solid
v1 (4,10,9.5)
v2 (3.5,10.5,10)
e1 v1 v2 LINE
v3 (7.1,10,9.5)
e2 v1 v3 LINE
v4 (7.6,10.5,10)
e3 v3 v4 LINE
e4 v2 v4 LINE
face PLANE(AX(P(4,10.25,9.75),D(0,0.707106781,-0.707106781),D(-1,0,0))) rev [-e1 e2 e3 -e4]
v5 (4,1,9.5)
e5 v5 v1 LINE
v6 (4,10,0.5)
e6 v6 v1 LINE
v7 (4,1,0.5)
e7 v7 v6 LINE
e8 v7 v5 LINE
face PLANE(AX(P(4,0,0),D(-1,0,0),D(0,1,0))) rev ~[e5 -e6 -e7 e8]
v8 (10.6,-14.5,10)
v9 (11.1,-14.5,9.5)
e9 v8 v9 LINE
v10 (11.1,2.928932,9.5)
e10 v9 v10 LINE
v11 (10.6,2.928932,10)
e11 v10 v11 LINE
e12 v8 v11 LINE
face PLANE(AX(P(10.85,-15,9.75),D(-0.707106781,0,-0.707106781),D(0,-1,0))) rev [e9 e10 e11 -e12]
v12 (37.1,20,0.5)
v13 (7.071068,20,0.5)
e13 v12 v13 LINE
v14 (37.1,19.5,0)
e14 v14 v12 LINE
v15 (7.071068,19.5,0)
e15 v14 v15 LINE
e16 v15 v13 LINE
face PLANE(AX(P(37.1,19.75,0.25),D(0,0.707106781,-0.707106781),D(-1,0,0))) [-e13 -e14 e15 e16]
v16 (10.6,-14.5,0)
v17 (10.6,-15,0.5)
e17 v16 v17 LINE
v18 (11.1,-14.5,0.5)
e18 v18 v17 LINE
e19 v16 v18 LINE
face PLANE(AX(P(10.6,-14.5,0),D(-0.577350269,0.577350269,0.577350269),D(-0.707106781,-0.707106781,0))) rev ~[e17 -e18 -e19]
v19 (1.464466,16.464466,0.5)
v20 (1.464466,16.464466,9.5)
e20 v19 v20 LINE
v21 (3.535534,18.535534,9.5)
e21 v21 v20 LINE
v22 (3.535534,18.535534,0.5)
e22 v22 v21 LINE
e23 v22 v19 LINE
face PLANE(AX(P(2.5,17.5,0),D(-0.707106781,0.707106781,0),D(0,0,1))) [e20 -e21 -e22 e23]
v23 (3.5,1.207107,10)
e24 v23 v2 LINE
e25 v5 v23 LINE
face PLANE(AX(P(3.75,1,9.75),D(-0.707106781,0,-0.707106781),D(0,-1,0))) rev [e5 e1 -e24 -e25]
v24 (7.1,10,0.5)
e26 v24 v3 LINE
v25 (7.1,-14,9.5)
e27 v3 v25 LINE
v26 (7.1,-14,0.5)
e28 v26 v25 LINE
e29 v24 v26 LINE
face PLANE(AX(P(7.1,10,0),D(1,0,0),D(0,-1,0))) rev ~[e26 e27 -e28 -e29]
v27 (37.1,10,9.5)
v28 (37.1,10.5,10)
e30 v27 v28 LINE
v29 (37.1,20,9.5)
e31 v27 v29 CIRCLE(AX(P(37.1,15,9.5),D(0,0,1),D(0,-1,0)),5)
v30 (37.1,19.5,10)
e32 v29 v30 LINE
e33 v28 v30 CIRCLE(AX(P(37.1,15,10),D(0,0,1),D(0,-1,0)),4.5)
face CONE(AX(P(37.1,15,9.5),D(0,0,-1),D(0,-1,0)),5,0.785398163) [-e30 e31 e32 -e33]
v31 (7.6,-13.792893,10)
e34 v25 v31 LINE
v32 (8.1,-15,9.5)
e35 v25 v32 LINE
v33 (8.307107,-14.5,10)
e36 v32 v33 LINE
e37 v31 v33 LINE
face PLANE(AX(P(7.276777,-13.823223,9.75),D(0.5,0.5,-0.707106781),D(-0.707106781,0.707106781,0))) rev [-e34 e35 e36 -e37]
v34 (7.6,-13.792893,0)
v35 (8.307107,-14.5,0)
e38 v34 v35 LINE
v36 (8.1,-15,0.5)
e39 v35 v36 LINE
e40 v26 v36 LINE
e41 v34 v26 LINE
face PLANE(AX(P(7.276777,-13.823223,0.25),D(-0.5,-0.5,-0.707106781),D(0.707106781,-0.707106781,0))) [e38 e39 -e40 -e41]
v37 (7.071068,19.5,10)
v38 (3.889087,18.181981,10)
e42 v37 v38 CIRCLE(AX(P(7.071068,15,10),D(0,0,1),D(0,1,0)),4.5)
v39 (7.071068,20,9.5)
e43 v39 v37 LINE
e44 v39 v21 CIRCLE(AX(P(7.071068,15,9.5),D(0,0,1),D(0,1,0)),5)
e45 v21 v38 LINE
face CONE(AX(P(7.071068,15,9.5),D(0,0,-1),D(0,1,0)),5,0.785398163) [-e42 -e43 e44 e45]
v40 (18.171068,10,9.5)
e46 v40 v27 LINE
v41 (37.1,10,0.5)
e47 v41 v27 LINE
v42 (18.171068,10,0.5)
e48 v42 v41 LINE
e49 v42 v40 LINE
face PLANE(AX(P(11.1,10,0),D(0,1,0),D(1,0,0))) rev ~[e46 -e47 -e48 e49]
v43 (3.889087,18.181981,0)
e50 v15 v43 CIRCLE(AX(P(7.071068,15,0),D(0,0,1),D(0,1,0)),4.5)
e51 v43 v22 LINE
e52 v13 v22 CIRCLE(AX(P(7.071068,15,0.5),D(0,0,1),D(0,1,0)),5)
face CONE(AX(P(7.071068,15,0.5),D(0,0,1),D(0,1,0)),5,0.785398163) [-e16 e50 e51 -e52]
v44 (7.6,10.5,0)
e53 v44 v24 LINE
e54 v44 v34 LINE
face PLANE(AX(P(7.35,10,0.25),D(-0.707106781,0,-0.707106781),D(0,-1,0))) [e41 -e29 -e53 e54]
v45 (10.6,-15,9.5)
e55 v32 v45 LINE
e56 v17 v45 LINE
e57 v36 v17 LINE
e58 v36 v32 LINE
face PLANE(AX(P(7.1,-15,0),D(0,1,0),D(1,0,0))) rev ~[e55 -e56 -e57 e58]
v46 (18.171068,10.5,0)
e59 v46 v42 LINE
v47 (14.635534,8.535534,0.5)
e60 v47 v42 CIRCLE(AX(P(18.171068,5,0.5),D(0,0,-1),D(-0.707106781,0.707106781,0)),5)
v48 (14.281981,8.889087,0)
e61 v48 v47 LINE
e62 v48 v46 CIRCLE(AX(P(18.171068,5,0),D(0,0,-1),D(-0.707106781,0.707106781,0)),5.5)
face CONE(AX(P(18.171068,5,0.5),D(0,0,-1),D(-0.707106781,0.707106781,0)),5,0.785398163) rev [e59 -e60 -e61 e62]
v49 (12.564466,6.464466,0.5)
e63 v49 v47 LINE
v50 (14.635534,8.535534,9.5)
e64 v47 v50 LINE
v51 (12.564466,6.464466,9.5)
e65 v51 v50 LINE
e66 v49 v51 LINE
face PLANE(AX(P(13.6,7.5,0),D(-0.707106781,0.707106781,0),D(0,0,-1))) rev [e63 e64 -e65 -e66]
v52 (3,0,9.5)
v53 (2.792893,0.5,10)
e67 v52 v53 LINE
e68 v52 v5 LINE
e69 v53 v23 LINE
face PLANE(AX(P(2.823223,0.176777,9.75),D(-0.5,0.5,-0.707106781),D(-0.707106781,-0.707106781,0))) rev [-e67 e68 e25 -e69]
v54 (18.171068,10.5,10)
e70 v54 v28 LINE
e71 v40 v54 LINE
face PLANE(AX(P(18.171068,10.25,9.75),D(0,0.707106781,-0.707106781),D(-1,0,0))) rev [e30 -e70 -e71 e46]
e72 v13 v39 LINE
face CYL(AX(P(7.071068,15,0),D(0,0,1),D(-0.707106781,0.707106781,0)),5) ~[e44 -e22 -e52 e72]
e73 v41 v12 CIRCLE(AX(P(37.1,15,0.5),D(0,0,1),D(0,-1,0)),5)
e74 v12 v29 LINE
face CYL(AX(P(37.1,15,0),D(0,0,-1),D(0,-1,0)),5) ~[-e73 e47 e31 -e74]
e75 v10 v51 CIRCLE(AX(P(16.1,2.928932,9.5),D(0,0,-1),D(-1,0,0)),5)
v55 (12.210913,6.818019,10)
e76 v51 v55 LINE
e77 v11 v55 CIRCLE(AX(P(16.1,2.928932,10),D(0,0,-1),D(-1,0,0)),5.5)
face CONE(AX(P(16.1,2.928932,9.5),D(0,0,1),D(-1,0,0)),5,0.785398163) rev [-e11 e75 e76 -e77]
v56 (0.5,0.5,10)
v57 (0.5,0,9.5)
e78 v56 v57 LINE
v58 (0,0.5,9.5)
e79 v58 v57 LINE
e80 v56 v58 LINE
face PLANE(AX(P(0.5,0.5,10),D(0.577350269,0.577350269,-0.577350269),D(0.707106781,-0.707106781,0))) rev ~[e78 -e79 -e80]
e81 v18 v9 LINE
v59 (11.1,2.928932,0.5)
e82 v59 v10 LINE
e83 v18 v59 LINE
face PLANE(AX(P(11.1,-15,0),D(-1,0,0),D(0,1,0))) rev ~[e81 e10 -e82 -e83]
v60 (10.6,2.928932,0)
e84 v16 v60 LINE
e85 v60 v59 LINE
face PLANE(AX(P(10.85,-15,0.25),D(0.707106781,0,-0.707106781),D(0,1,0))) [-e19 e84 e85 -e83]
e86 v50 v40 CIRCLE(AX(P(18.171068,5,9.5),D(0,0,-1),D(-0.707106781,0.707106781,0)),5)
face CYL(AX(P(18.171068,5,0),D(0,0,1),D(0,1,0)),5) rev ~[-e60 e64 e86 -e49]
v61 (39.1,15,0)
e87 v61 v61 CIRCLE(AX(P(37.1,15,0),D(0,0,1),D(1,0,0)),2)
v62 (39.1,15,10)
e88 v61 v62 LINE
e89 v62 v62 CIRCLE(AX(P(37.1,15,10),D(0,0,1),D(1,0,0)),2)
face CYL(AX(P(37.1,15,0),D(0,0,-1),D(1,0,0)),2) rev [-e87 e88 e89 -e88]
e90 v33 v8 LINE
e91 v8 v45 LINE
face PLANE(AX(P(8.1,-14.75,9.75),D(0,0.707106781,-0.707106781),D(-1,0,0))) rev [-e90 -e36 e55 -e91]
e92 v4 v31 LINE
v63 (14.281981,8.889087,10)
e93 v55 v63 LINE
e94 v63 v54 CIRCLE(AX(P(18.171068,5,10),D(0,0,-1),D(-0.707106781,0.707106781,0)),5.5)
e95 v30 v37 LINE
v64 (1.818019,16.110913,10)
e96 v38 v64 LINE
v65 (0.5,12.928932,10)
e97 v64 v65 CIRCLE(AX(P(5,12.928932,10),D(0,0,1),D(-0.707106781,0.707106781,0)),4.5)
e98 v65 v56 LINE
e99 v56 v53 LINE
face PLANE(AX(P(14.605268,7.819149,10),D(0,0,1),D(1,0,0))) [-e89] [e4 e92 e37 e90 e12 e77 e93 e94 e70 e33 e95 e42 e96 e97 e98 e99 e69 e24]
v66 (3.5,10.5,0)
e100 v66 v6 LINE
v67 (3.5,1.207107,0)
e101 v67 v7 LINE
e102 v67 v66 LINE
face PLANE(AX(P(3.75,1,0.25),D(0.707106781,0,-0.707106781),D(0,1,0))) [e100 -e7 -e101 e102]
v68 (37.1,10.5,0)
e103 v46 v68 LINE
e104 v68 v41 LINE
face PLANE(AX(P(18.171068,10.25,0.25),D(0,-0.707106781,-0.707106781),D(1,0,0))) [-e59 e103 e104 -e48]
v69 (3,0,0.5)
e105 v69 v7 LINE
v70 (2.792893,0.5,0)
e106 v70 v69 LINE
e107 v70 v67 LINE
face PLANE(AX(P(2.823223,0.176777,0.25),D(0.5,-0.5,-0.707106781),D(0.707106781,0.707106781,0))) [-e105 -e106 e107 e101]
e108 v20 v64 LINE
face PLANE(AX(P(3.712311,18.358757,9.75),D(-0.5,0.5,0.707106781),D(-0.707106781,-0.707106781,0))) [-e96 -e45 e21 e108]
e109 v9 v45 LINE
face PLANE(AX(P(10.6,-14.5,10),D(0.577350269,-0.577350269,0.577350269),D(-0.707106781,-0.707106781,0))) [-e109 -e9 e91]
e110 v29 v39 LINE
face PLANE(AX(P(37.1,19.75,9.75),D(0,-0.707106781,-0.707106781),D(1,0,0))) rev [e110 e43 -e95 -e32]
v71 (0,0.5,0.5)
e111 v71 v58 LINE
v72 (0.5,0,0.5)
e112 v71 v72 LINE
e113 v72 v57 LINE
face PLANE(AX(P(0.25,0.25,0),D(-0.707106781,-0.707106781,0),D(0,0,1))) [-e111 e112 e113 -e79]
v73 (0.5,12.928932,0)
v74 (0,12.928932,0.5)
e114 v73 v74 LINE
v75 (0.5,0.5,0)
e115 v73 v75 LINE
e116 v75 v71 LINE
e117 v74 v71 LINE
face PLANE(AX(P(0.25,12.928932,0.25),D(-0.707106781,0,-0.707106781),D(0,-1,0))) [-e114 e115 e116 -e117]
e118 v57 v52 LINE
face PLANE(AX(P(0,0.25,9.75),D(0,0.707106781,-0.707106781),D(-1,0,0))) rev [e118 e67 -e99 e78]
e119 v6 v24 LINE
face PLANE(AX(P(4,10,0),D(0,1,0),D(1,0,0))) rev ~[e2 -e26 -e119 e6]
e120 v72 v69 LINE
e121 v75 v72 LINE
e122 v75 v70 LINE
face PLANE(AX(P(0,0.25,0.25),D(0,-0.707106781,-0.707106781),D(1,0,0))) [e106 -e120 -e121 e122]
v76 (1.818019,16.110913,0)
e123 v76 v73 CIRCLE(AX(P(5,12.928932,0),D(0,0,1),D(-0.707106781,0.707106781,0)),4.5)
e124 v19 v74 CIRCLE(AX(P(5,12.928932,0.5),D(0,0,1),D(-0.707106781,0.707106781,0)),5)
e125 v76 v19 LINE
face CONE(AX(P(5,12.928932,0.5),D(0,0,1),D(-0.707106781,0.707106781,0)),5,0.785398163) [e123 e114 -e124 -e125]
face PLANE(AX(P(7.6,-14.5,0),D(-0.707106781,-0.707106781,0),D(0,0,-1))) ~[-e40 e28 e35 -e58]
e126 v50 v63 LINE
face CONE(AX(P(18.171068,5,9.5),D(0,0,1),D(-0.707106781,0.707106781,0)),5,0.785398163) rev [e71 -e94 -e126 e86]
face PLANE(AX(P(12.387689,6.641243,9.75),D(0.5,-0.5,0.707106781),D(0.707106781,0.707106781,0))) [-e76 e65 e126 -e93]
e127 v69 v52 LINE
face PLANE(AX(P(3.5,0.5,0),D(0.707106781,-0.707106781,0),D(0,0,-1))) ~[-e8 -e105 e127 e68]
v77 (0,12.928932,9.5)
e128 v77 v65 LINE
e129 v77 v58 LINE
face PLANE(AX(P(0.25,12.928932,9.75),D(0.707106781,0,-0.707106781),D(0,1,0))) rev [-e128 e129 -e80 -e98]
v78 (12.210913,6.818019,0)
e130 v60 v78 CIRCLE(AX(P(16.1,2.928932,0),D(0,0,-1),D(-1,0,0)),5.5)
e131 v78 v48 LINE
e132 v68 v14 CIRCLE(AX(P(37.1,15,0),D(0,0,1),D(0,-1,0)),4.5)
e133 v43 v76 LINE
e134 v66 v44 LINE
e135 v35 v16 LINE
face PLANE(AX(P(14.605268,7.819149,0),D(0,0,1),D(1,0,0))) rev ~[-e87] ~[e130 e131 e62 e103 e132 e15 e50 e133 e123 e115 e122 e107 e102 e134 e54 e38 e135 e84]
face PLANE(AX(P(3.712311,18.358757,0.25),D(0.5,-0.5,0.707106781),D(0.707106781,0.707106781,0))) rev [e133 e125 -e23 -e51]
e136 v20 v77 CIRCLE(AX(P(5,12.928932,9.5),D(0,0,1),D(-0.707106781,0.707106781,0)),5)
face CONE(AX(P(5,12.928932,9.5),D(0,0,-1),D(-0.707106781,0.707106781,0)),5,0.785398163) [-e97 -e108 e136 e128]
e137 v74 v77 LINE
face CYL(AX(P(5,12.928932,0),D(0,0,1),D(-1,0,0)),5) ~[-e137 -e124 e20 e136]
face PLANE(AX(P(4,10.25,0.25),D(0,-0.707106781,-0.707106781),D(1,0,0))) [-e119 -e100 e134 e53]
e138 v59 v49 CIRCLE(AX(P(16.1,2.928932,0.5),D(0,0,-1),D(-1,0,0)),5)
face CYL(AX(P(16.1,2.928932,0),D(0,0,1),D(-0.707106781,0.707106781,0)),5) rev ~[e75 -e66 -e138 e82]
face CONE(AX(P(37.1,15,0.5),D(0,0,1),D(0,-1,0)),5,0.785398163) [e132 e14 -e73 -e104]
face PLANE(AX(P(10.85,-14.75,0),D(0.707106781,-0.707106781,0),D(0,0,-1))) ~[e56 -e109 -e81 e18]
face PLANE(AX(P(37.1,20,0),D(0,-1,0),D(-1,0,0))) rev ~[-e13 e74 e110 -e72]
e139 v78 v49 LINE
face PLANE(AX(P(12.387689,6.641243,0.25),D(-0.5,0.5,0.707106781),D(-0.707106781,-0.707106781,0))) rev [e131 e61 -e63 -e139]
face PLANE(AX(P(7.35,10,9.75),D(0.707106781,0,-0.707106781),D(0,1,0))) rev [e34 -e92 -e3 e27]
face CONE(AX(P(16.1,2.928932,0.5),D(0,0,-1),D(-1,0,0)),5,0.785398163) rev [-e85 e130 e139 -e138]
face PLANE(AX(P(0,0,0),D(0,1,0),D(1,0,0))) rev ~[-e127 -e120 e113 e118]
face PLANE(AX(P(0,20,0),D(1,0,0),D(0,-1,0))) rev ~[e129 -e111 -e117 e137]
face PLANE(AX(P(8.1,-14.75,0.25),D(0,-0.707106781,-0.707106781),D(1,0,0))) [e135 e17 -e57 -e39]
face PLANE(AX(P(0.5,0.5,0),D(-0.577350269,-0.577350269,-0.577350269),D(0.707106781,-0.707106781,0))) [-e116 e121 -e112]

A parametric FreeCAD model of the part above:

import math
import FreeCAD as App
import Part
import Sketcher
from FreeCAD import Vector


def edges_at(feature, points):
    """Names of the edges that pass closest to the given points."""
    edges = feature.Shape.Edges
    near = lambda p: min(range(len(edges)), key=lambda i: edges[i].distToShape(Part.Vertex(*p))[0])
    return sorted({f"Edge{near(p) + 1}" for p in points})

doc = App.newDocument("Part")
body = doc.addObject("PartDesign::Body", "Body")

sketch1 = body.newObject("Sketcher::SketchObject", "Sketch")
sketch1.AttachmentSupport = (doc.getObject("XY_Plane"), [""])
sketch1.MapMode = "FlatFace"
sketch1.addGeometry(Part.LineSegment(Vector(0, 20, 0), Vector(0, 0, 0)), False)
sketch1.addGeometry(Part.LineSegment(Vector(0, 0, 0), Vector(4, 0, 0)), False)
sketch1.addGeometry(Part.LineSegment(Vector(4, 0, 0), Vector(4, 10, 0)), False)
sketch1.addGeometry(Part.LineSegment(Vector(4, 10, 0), Vector(7.1, 10, 0)), False)
sketch1.addGeometry(Part.LineSegment(Vector(7.1, 10, 0), Vector(7.1, -15, 0)), False)
sketch1.addGeometry(Part.LineSegment(Vector(7.1, -15, 0), Vector(11.1, -15, 0)), False)
sketch1.addGeometry(Part.LineSegment(Vector(11.1, -15, 0), Vector(11.1, 10, 0)), False)
sketch1.addGeometry(Part.LineSegment(Vector(11.1, 10, 0), Vector(37.1, 10, 0)), False)
sketch1.addGeometry(Part.ArcOfCircle(Part.Circle(Vector(37.1, 15, 0), Vector(0, 0, 1), 5), math.radians(-90), math.radians(90)), False)
sketch1.addGeometry(Part.LineSegment(Vector(37.1, 20, 0), Vector(0, 20, 0)), False)
sketch1.addGeometry(Part.Circle(Vector(37.1, 15, 0), Vector(0, 0, 1), 2), False)
sketch1.addConstraint(Sketcher.Constraint("Coincident", 0, 2, 1, 1))
sketch1.addConstraint(Sketcher.Constraint("Coincident", 1, 2, 2, 1))
sketch1.addConstraint(Sketcher.Constraint("Coincident", 2, 2, 3, 1))
sketch1.addConstraint(Sketcher.Constraint("Coincident", 3, 2, 4, 1))
sketch1.addConstraint(Sketcher.Constraint("Coincident", 4, 2, 5, 1))
sketch1.addConstraint(Sketcher.Constraint("Coincident", 5, 2, 6, 1))
sketch1.addConstraint(Sketcher.Constraint("Coincident", 6, 2, 7, 1))
sketch1.addConstraint(Sketcher.Constraint("Tangent", 7, 2, 8, 1))
sketch1.addConstraint(Sketcher.Constraint("Tangent", 8, 2, 9, 1))
sketch1.addConstraint(Sketcher.Constraint("Coincident", 9, 2, 0, 1))
sketch1.addConstraint(Sketcher.Constraint("Vertical", 0))
sketch1.addConstraint(Sketcher.Constraint("Horizontal", 1))
sketch1.addConstraint(Sketcher.Constraint("Vertical", 2))
sketch1.addConstraint(Sketcher.Constraint("Horizontal", 3))
sketch1.addConstraint(Sketcher.Constraint("Vertical", 4))
sketch1.addConstraint(Sketcher.Constraint("Horizontal", 5))
sketch1.addConstraint(Sketcher.Constraint("Vertical", 6))
sketch1.addConstraint(Sketcher.Constraint("Horizontal", 7))
sketch1.addConstraint(Sketcher.Constraint("Horizontal", 9))
sketch1.addConstraint(Sketcher.Constraint("Coincident", 0, 2, -1, 1))
sketch1.addConstraint(Sketcher.Constraint("Coincident", 10, 3, 8, 3))
sketch1.addConstraint(Sketcher.Constraint("Horizontal", 3, 2, 6, 2))
sketch1.addConstraint(Sketcher.Constraint("Equal", 1, 5))
sketch1.addConstraint(Sketcher.Constraint("Diameter", 10, 4.0))
sketch1.addConstraint(Sketcher.Constraint("Radius", 8, 5.0))
sketch1.addConstraint(Sketcher.Constraint("DistanceX", 1, 1, 1, 2, 4.0))
sketch1.addConstraint(Sketcher.Constraint("DistanceX", 7, 1, 7, 2, 26.0))
sketch1.addConstraint(Sketcher.Constraint("DistanceY", 0, 2, 0, 1, 20.0))
sketch1.addConstraint(Sketcher.Constraint("DistanceY", 4, 2, 4, 1, 25.0))
sketch1.addConstraint(Sketcher.Constraint("DistanceX", 3, 1, 3, 2, 3.1))
pad1 = body.newObject("PartDesign::Pad", "Pad")
pad1.Profile = sketch1
pad1.Length = 10
doc.recompute()

chamfer = body.newObject("PartDesign::Chamfer", "Chamfer")
chamfer.Base = (pad1, edges_at(pad1, [(0, 20, 5), (11.1, 10, 5)]))
chamfer.Size = 5
doc.recompute()

fillet = body.newObject("PartDesign::Fillet", "Fillet")
fillet.Base = (chamfer, edges_at(chamfer, [
    (0, 15, 5),
    (5, 20, 5),
    (16.1, 10, 5),
    (11.1, 5, 5),
]))
fillet.Radius = 5
doc.recompute()

chamfer2 = body.newObject("PartDesign::Chamfer", "Chamfer001")
chamfer2.Base = (fillet, edges_at(fillet, [(4, 0, 5), (7.1, -15, 5)]))
chamfer2.Size = 1
doc.recompute()

chamfer3 = body.newObject("PartDesign::Chamfer", "Chamfer002")
chamfer3.Base = (chamfer2, edges_at(chamfer2, [
    (0, 0, 5),
    (11.1, -15, 5),
    (27.636, 10, 10),
    (27.636, 10, 0),
    (1.5, 0, 10),
    (3.5, 0.5, 10),
    (4, 5.5, 10),
    (5.55, 10, 10),
    (7.1, -2, 10),
    (9.6, -15, 10),
    (7.6, -14.5, 10),
    (1.5, 0, 0),
    (3.5, 0.5, 0),
    (4, 5.5, 0),
    (5.55, 10, 0),
    (7.1, -2, 0),
    (7.6, -14.5, 0),
    (9.6, -15, 0),
]))
chamfer3.Size = 0.5

doc.recompute()
